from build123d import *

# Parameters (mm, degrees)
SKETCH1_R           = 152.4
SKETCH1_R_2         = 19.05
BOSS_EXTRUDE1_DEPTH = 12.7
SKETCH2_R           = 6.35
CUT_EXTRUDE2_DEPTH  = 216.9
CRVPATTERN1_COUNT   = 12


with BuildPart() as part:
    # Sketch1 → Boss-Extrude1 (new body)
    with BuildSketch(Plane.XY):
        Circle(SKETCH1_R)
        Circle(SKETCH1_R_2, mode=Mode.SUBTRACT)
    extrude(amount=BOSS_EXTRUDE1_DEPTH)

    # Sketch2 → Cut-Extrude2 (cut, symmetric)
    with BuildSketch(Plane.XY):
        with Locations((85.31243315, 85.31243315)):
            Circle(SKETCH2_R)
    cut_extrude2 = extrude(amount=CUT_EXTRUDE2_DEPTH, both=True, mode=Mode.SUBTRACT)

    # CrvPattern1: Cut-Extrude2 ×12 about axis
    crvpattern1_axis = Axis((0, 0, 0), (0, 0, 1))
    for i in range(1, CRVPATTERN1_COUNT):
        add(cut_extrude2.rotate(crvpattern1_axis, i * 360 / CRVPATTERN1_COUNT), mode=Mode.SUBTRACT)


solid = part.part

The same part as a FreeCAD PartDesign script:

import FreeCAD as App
import Part
import Sketcher
from FreeCAD import Vector
Q = App.Units.Quantity

doc = App.newDocument("Part")
body = doc.addObject("PartDesign::Body", "Body")

# Sketch on XY plane
sketch1 = body.newObject("Sketcher::SketchObject", "Sketch")
sketch1.AttachmentSupport = (doc.getObject("XY_Plane"), [""])
sketch1.MapMode = "FlatFace"
sketch1.addGeometry([
    Part.Circle(Vector(0, 0, 0), Vector(0, 0, 1), 152),
    Part.Circle(Vector(0, 0, 0), Vector(0, 0, 1), 19),
], False)
sketch1.addConstraint([
    Sketcher.Constraint("Coincident", 0, 3, -1, 1),
    Sketcher.Constraint("Coincident", 1, 3, -1, 1),
    Sketcher.Constraint("Diameter", 0, Q("12 in")),
    Sketcher.Constraint("Diameter", 1, Q("1.5 in")),
])
pad1 = body.newObject("PartDesign::Pad", "Pad")
pad1.Profile = sketch1
pad1.Length = Q("0.5 in")

# Sketch on XY plane
sketch2 = body.newObject("Sketcher::SketchObject", "Sketch001")
sketch2.AttachmentSupport = (doc.getObject("XY_Plane"), [""])
sketch2.MapMode = "FlatFace"
sketch2.addGeometry(Part.Circle(Vector(85, 85, 0), Vector(0, 0, 1), 6), False)
sketch2.addConstraint([
    Sketcher.Constraint("Diameter", 0, Q("0.5 in")),
    Sketcher.Constraint("DistanceX", -1, 1, 0, 3, 85.312433),
    Sketcher.Constraint("DistanceY", -1, 1, 0, 3, 85.312433),
])
pocket1 = body.newObject("PartDesign::Pocket", "Pocket")
pocket1.Profile = sketch2
pocket1.Length = 433.8
pocket1.Midplane = True
doc.recompute()

polarpattern = body.newObject("PartDesign::PolarPattern", "PolarPattern")
polarpattern.Originals = [pocket1]
polarpattern.Axis = (doc.getObject("Z_Axis"), [""])
polarpattern.Angle = 360
polarpattern.Occurrences = 12
body.Tip = polarpattern

doc.recompute()
